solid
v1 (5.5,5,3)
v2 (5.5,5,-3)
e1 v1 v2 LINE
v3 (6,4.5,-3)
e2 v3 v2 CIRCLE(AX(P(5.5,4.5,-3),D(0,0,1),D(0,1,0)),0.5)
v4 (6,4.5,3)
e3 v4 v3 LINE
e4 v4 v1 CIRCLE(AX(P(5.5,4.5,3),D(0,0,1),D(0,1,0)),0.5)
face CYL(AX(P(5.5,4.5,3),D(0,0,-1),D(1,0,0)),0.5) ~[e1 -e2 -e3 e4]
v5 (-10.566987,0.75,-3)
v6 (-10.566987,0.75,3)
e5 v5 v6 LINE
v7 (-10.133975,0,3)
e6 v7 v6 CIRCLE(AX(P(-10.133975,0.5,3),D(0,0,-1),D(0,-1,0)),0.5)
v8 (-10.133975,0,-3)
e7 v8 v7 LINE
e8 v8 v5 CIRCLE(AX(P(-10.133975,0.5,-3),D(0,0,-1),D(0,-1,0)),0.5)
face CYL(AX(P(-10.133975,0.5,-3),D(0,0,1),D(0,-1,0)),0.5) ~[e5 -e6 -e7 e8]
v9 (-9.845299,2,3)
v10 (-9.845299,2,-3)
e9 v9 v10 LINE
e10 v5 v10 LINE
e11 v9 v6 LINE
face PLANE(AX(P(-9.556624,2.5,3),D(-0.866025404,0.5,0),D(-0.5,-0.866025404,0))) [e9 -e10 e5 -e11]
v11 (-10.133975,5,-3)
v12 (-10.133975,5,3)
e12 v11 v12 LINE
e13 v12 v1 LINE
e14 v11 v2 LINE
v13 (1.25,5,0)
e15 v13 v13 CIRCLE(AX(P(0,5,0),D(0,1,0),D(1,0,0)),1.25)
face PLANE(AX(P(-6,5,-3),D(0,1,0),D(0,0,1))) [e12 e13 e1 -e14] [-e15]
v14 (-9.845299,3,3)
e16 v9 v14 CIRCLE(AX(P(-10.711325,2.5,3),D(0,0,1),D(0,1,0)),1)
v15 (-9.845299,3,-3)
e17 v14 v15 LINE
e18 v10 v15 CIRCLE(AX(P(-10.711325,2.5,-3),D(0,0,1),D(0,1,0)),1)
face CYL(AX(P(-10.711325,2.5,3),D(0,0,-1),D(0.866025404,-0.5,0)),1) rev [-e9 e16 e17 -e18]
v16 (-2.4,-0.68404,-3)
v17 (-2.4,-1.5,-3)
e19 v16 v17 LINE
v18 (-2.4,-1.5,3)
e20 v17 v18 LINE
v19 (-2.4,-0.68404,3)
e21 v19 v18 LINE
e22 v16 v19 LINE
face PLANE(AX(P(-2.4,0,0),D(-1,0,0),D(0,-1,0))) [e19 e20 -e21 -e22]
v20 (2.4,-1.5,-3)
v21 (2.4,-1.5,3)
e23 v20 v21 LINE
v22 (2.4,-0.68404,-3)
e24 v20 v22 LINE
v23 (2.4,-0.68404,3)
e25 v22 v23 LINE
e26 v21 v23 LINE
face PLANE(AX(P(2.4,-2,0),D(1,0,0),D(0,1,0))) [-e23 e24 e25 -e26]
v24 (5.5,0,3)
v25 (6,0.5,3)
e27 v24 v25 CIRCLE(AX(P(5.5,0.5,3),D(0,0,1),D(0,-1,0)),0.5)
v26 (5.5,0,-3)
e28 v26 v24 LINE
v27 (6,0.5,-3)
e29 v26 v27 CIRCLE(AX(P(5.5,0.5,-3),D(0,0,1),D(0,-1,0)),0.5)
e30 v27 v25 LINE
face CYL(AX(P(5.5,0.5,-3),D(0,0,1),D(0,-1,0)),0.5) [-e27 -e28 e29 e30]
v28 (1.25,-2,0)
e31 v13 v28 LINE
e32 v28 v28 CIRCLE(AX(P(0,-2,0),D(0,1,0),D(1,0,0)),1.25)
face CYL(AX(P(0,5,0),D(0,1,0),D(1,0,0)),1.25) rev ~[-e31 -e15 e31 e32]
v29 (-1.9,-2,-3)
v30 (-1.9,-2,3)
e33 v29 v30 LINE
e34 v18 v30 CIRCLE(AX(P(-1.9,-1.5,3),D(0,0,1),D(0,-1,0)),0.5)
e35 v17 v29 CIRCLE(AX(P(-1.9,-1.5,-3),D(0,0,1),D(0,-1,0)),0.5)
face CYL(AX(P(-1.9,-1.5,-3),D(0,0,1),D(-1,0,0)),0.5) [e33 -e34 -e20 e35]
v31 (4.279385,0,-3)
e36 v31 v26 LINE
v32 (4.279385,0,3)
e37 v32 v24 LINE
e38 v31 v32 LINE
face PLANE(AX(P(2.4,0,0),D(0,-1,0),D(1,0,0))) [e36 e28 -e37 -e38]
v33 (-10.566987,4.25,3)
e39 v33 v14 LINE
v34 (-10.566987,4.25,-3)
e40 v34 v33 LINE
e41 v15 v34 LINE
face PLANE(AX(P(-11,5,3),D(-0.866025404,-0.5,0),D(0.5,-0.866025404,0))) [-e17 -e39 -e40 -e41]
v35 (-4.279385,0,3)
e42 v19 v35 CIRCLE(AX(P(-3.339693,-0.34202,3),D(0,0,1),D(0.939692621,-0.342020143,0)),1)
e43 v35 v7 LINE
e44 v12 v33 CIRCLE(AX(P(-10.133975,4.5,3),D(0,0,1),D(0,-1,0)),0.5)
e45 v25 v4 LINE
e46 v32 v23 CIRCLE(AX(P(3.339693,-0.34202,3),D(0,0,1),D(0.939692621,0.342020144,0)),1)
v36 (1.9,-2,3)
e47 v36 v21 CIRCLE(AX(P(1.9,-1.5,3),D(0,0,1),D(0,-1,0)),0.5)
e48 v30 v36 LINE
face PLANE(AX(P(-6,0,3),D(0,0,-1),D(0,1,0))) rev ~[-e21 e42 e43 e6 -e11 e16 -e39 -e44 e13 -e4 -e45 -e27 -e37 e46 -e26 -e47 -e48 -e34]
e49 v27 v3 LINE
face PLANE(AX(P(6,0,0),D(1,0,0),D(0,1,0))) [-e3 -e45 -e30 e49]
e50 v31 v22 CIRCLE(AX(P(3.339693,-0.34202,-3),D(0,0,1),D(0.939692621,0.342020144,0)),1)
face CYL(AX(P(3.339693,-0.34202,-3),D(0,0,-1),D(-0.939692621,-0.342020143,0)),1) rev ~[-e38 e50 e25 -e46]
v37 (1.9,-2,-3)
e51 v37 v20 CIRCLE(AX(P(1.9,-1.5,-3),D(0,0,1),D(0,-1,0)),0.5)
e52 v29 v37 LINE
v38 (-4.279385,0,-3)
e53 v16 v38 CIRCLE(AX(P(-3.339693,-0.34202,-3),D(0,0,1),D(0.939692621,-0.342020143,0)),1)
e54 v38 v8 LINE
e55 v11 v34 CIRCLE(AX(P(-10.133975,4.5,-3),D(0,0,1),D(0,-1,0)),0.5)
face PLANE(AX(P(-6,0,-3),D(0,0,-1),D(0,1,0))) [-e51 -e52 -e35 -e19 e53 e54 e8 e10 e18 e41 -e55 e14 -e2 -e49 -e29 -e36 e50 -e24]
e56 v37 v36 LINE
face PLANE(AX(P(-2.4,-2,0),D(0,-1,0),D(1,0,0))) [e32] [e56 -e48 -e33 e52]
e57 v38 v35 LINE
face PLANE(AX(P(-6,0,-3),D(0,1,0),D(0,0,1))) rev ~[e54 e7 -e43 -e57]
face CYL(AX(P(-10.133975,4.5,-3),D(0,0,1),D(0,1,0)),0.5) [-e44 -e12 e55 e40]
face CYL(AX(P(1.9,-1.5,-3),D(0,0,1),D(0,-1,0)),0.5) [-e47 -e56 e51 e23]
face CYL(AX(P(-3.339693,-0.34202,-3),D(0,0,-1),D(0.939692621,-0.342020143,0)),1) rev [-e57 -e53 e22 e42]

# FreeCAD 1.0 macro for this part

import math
import FreeCAD as App
import Part
import Sketcher
from FreeCAD import Vector
Q = App.Units.Quantity


def edges_at(feature, points):
    """Names of the edges that pass closest to the given points."""
    edges = feature.Shape.Edges
    near = lambda p: min(range(len(edges)), key=lambda i: edges[i].distToShape(Part.Vertex(*p))[0])
    return sorted({f"Edge{near(p) + 1}" for p in points})

doc = App.newDocument("Part")
body = doc.addObject("PartDesign::Body", "Body")

# Sketch on XY plane
sketch1 = doc.addObject("Sketcher::SketchObject", "Sketch")
body.addObject(sketch1)
sketch1.AttachmentSupport = (doc.XY_Plane, [""])
sketch1.MapMode = "FlatFace"
sketch1.addGeometry(Part.LineSegment(Vector(-6, 0, 0), Vector(-2.4, 0, 0)), False)
sketch1.addGeometry(Part.LineSegment(Vector(-2.4, 0, 0), Vector(-2.4, -2, 0)), False)
sketch1.addGeometry(Part.LineSegment(Vector(-2.4, -2, 0), Vector(2.4, -2, 0)), False)
sketch1.addGeometry(Part.LineSegment(Vector(2.4, -2, 0), Vector(2.4, 0, 0)), False)
sketch1.addGeometry(Part.LineSegment(Vector(2.4, 0, 0), Vector(6, 0, 0)), False)
sketch1.addGeometry(Part.LineSegment(Vector(6, 0, 0), Vector(6, 5, 0)), False)
sketch1.addGeometry(Part.LineSegment(Vector(6, 5, 0), Vector(-6, 5, 0)), False)
sketch1.addGeometry(Part.LineSegment(Vector(-6, 5, 0), Vector(-6, 0, 0)), False)
sketch1.addConstraint(Sketcher.Constraint("Coincident", 0, 2, 1, 1))
sketch1.addConstraint(Sketcher.Constraint("Coincident", 1, 2, 2, 1))
sketch1.addConstraint(Sketcher.Constraint("Coincident", 2, 2, 3, 1))
sketch1.addConstraint(Sketcher.Constraint("Coincident", 3, 2, 4, 1))
sketch1.addConstraint(Sketcher.Constraint("Coincident", 4, 2, 5, 1))
sketch1.addConstraint(Sketcher.Constraint("Coincident", 5, 2, 6, 1))
sketch1.addConstraint(Sketcher.Constraint("Coincident", 6, 2, 7, 1))
sketch1.addConstraint(Sketcher.Constraint("Coincident", 7, 2, 0, 1))
sketch1.addConstraint(Sketcher.Constraint("Horizontal", 0))
sketch1.addConstraint(Sketcher.Constraint("Vertical", 1))
sketch1.addConstraint(Sketcher.Constraint("Horizontal", 2))
sketch1.addConstraint(Sketcher.Constraint("Vertical", 3))
sketch1.addConstraint(Sketcher.Constraint("Horizontal", 4))
sketch1.addConstraint(Sketcher.Constraint("Vertical", 5))
sketch1.addConstraint(Sketcher.Constraint("Horizontal", 6))
sketch1.addConstraint(Sketcher.Constraint("Vertical", 7))
sketch1.addConstraint(Sketcher.Constraint("Symmetric", 0, 2, 3, 2, -1, 1))
sketch1.addConstraint(Sketcher.Constraint("Symmetric", 4, 2, 7, 2, -2))
sketch1.addConstraint(Sketcher.Constraint("DistanceX", 6, 2, 6, 1, 12.0))
sketch1.addConstraint(Sketcher.Constraint("DistanceY", 1, 2, 1, 1, 2.0))
sketch1.addConstraint(Sketcher.Constraint("DistanceY", 5, 1, 5, 2, 5.0))
sketch1.addConstraint(Sketcher.Constraint("DistanceX", 0, 1, 0, 2, 3.6))
pad1 = doc.addObject("PartDesign::Pad", "Pad")
body.addObject(pad1)
pad1.Profile = sketch1
pad1.Length = 6
pad1.Midplane = True

# Sketch on XZ plane
sketch2 = doc.addObject("Sketcher::SketchObject", "Sketch001")
body.addObject(sketch2)
sketch2.AttachmentSupport = (doc.XZ_Plane, [""])
sketch2.MapMode = "FlatFace"
sketch2.AttachmentOffset = App.Placement(Vector(0, 0, -5), App.Rotation())
sketch2.addGeometry(Part.Circle(Vector(0, 0, 0), Vector(0, 0, 1), 1.25), False)
sketch2.addConstraint(Sketcher.Constraint("Coincident", 0, 3, -1, 1))
sketch2.addConstraint(Sketcher.Constraint("Diameter", 0, 2.5))
pocket1 = doc.addObject("PartDesign::Pocket", "Pocket")
body.addObject(pocket1)
pocket1.Profile = sketch2
pocket1.Type = "ThroughAll"
pocket1.Reversed = True

# Sketch on YZ plane
sketch3 = doc.addObject("Sketcher::SketchObject", "Sketch002")
body.addObject(sketch3)
sketch3.AttachmentSupport = (doc.YZ_Plane, [""])
sketch3.MapMode = "FlatFace"
sketch3.AttachmentOffset = App.Placement(Vector(0, 0, -6), App.Rotation())
sketch3.addGeometry(Part.LineSegment(Vector(5, -3, 0), Vector(0, -3, 0)), False)
sketch3.addGeometry(Part.LineSegment(Vector(0, -3, 0), Vector(0, 3, 0)), False)
sketch3.addGeometry(Part.LineSegment(Vector(0, 3, 0), Vector(5, 3, 0)), False)
sketch3.addGeometry(Part.LineSegment(Vector(5, 3, 0), Vector(5, -3, 0)), False)
sketch3.addConstraint(Sketcher.Constraint("Coincident", 0, 2, 1, 1))
sketch3.addConstraint(Sketcher.Constraint("Coincident", 1, 2, 2, 1))
sketch3.addConstraint(Sketcher.Constraint("Coincident", 2, 2, 3, 1))
sketch3.addConstraint(Sketcher.Constraint("Coincident", 3, 2, 0, 1))
sketch3.addConstraint(Sketcher.Constraint("Horizontal", 0))
sketch3.addConstraint(Sketcher.Constraint("Vertical", 1))
sketch3.addConstraint(Sketcher.Constraint("Horizontal", 2))
sketch3.addConstraint(Sketcher.Constraint("Vertical", 3))
sketch3.addConstraint(Sketcher.Constraint("Symmetric", 0, 2, 1, 2, -1, 1))
sketch3.addConstraint(Sketcher.Constraint("DistanceX", 0, 2, 0, 1, 5.0))
sketch3.addConstraint(Sketcher.Constraint("DistanceY", 1, 1, 1, 2, 6.0))
pad2 = doc.addObject("PartDesign::Pad", "Pad001")
body.addObject(pad2)
pad2.Profile = sketch3
pad2.Length = 5
pad2.Reversed = True

# Sketch on XY plane
sketch4 = doc.addObject("Sketcher::SketchObject", "Sketch003")
body.addObject(sketch4)
sketch4.AttachmentSupport = (doc.XY_Plane, [""])
sketch4.MapMode = "FlatFace"
sketch4.AttachmentOffset = App.Placement(Vector(0, 0, 3), App.Rotation())
sketch4.addGeometry(Part.LineSegment(Vector(-9.556624, 2.5, 0), Vector(-11, 5, 0)), False)
sketch4.addGeometry(Part.LineSegment(Vector(-11, 5, 0), Vector(-11, 0, 0)), False)
sketch4.addGeometry(Part.LineSegment(Vector(-11, 0, 0), Vector(-9.556624, 2.5, 0)), False)
sketch4.addConstraint(Sketcher.Constraint("Coincident", 0, 2, 1, 1))
sketch4.addConstraint(Sketcher.Constraint("Coincident", 1, 2, 2, 1))
sketch4.addConstraint(Sketcher.Constraint("Coincident", 2, 2, 0, 1))
sketch4.addConstraint(Sketcher.Constraint("Vertical", 1))
sketch4.addConstraint(Sketcher.Constraint("PointOnObject", 1, 2, -1))
sketch4.addConstraint(Sketcher.Constraint("Equal", 0, 2))
sketch4.addConstraint(Sketcher.Constraint("DistanceY", 1, 2, 1, 1, 5.0))
sketch4.addConstraint(Sketcher.Constraint("Angle", 0, Q("120 deg")))
sketch4.addConstraint(Sketcher.Constraint("DistanceX", 0, 2, -1, 1, 11.0))
pocket2 = doc.addObject("PartDesign::Pocket", "Pocket001")
body.addObject(pocket2)
pocket2.Profile = sketch4
pocket2.Type = "ThroughAll"
doc.recompute()

fillet = doc.addObject("PartDesign::Fillet", "Fillet")
body.addObject(fillet)
fillet.Base = (pocket2, edges_at(pocket2, [
    (6, 0, 0),
    (2.4, -2, 0),
    (-2.4, -2, 0),
    (6, 5, 0),
    (-11, 0, 0),
    (-11, 5, 0),
]))
fillet.Radius = 0.5
doc.recompute()

fillet2 = doc.addObject("PartDesign::Fillet", "Fillet001")
body.addObject(fillet2)
fillet2.Base = (fillet, edges_at(fillet, [(-9.557, 2.5, 0)]))
fillet2.Radius = 1

# Sketch on XY plane
sketch5 = doc.addObject("Sketcher::SketchObject", "Sketch004")
body.addObject(sketch5)
sketch5.AttachmentSupport = (doc.XY_Plane, [""])
sketch5.MapMode = "FlatFace"
sketch5.AttachmentOffset = App.Placement(Vector(0, 0, -3), App.Rotation())
sketch5.addGeometry(Part.LineSegment(Vector(4.279385, 0, 0), Vector(2.4, -0.68404, 0)), False)
sketch5.addGeometry(Part.ArcOfCircle(Part.Circle(Vector(3.339693, -0.34202, 0), Vector(0, 0, 1), 1), math.radians(20), math.radians(200)), False)
sketch5.addGeometry(Part.LineSegment(Vector(-2.4, -0.68404, 0), Vector(-4.279385, 0, 0)), False)
sketch5.addGeometry(Part.ArcOfCircle(Part.Circle(Vector(-3.339693, -0.34202, 0), Vector(0, 0, 1), 1), math.radians(-20), math.radians(160)), False)
sketch5.addConstraint(Sketcher.Constraint("Coincident", 0, 1, 1, 1))
sketch5.addConstraint(Sketcher.Constraint("Coincident", 1, 2, 0, 2))
sketch5.addConstraint(Sketcher.Constraint("Coincident", 2, 1, 3, 1))
sketch5.addConstraint(Sketcher.Constraint("Coincident", 3, 2, 2, 2))
sketch5.addConstraint(Sketcher.Constraint("Equal", 1, 3))
sketch5.addConstraint(Sketcher.Constraint("Symmetric", 0, 1, 3, 2, -1, 1))
sketch5.addConstraint(Sketcher.Constraint("Symmetric", 1, 3, 3, 3, -2))
sketch5.addConstraint(Sketcher.Constraint("Horizontal", 1, 2, 2, 1))
sketch5.addConstraint(Sketcher.Constraint("Radius", 1, 1.0))
sketch5.addConstraint(Sketcher.Constraint("Angle", 0, Q("-160 deg")))
sketch5.addConstraint(Sketcher.Constraint("DistanceX", -1, 1, 1, 2, 2.4))
sketch5.addConstraint(Sketcher.Constraint("DistanceY", 1, 3, -1, 1, 0.34202))
pocket3 = doc.addObject("PartDesign::Pocket", "Pocket002")
body.addObject(pocket3)
pocket3.Profile = sketch5
pocket3.Type = "ThroughAll"
pocket3.Reversed = True

doc.recompute()
